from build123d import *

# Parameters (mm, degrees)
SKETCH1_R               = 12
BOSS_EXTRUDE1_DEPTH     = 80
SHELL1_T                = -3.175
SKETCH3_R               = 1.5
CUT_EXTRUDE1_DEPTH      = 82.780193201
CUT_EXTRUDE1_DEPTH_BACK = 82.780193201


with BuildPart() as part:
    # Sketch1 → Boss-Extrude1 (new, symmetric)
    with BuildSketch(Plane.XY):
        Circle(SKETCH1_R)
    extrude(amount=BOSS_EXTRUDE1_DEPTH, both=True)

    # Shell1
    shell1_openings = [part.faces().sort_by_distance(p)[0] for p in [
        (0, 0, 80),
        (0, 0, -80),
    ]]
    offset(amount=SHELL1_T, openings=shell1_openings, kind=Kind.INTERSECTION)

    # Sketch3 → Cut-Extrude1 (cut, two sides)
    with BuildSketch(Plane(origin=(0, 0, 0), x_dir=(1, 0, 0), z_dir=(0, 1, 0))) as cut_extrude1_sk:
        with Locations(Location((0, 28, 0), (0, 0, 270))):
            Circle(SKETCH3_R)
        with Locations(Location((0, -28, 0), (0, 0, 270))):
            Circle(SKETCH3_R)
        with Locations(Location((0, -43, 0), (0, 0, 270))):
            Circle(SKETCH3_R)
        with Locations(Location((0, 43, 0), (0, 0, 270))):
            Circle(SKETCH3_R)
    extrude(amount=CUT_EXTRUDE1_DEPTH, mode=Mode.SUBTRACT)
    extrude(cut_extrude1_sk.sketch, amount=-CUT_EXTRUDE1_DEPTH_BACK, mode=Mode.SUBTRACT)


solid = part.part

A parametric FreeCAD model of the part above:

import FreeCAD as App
import Part
import Sketcher

V = App.Vector
Q = App.Units.Quantity


def faces_at(feature, points):
    """Names of the faces that lie closest to the given points."""
    faces = feature.Shape.Faces
    near = lambda p: min(range(len(faces)), key=lambda i: faces[i].distToShape(Part.Vertex(*p))[0])
    return sorted({f"Face{near(p) + 1}" for p in points})

doc = App.newDocument("Part")
params = doc.addObject("Spreadsheet::Sheet", "Params")
for row, (alias, value) in enumerate([
    ("sketch1_diameter", "24 mm"),
    ("pad1_length", "160 mm"),
    ("thickness_wall", "3.175 mm"),
    ("sketch2_diameter", "3 mm"),
], start=1):
    params.set(f"A{row}", alias)
    params.set(f"B{row}", "=" + value)
    params.setAlias(f"B{row}", alias)

body = doc.addObject("PartDesign::Body", "Body")

# Sketch on XY plane
sketch1 = body.newObject("Sketcher::SketchObject", "Sketch")
sketch1.AttachmentSupport = (doc.getObject("XY_Plane"), [""])
sketch1.MapMode = "FlatFace"
sketch1.addGeometry(Part.Circle(V(0, 0, 0), V(0, 0, 1), 12), False)
sketch1.addConstraint([
    Sketcher.Constraint("Coincident", 0, 3, -1, 1),
    Sketcher.Constraint("Diameter", 0, Q("24 mm")),
])
sketch1.setExpression("Constraints[1]", "Params.sketch1_diameter")
pad1 = body.newObject("PartDesign::Pad", "Pad")
pad1.Profile = sketch1
pad1.setExpression("Length", "Params.pad1_length")
pad1.Midplane = True
doc.recompute()

thickness = body.newObject("PartDesign::Thickness", "Thickness")
thickness.Base = (pad1, faces_at(pad1, [(0, 0, 80), (0, 0, -80)]))
thickness.setExpression("Value", "Params.thickness_wall")
thickness.Reversed = True
thickness.Join = "Intersection"

# Sketch on XZ plane
sketch2 = body.newObject("Sketcher::SketchObject", "Sketch001")
sketch2.AttachmentSupport = (doc.getObject("XZ_Plane"), [""])
sketch2.MapMode = "FlatFace"
sketch2.addGeometry([
    Part.Circle(V(0, -28, 0), V(0, 0, 1), 1.5),
    Part.Circle(V(0, 28, 0), V(0, 0, 1), 1.5),
    Part.Circle(V(0, 43, 0), V(0, 0, 1), 1.5),
    Part.Circle(V(0, -43, 0), V(0, 0, 1), 1.5),
], False)
sketch2.addConstraint([
    Sketcher.Constraint("Equal", 0, 1),
    Sketcher.Constraint("Equal", 1, 2),
    Sketcher.Constraint("Equal", 2, 3),
    Sketcher.Constraint("Symmetric", 0, 3, 1, 3, -1, 1),
    Sketcher.Constraint("Symmetric", 2, 3, 3, 3, -1, 1),
    Sketcher.Constraint("PointOnObject", 0, 3, -2),
    Sketcher.Constraint("PointOnObject", 2, 3, -2),
    Sketcher.Constraint("Diameter", 0, Q("3 mm")),
    Sketcher.Constraint("DistanceY", 0, 3, -1, 1, Q("28 mm")),
    Sketcher.Constraint("DistanceY", -1, 1, 2, 3, Q("43 mm")),
])
sketch2.setExpression("Constraints[7]", "Params.sketch2_diameter")
pocket1 = body.newObject("PartDesign::Pocket", "Pocket")
pocket1.Profile = sketch2
pocket1.Type = "ThroughAll"
pocket1.Midplane = True

doc.recompute()
